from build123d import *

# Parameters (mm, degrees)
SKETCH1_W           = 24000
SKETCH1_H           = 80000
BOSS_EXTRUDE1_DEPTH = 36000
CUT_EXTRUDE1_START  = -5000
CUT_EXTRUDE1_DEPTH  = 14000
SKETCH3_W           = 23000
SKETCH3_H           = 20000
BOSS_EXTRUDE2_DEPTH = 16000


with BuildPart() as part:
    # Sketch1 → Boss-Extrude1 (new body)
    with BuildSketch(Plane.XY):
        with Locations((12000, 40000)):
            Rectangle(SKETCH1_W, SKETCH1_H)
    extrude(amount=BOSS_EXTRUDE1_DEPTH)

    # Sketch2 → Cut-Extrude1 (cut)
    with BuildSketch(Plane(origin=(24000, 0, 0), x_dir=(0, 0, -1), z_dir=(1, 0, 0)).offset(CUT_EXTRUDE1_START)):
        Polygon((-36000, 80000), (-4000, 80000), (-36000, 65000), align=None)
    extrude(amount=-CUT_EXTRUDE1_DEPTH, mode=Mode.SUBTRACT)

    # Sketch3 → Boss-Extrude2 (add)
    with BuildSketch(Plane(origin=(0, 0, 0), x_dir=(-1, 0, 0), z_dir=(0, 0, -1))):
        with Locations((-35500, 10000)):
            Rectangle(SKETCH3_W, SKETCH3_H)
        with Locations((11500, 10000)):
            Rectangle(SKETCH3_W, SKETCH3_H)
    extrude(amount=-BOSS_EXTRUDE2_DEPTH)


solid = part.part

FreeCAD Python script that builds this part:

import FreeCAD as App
import Part
import Sketcher


def add_polygon(sketch, points):
    """Adds a closed chain of lines whose ends are joined by coincident constraints."""
    first, n = sketch.GeometryCount, len(points)
    for a, b in zip(points, points[1:] + points[:1]):
        sketch.addGeometry(Part.LineSegment(App.Vector(*a, 0), App.Vector(*b, 0)), False)
    for i in range(n):
        sketch.addConstraint(Sketcher.Constraint("Coincident", first + i, 2, first + (i + 1) % n, 1))

doc = App.newDocument("Part")
body = doc.addObject("PartDesign::Body", "Body")

# Sketch on XY plane
sketch1 = doc.addObject("Sketcher::SketchObject", "Sketch")
body.addObject(sketch1)
sketch1.AttachmentSupport = (doc.XY_Plane, [""])
sketch1.MapMode = "FlatFace"
add_polygon(sketch1, [(0, 80000), (0, 0), (24000, 0), (24000, 80000)])  # lines 0-3
sketch1.addConstraint(Sketcher.Constraint("Vertical", 0))
sketch1.addConstraint(Sketcher.Constraint("Horizontal", 1))
sketch1.addConstraint(Sketcher.Constraint("Vertical", 2))
sketch1.addConstraint(Sketcher.Constraint("Horizontal", 3))
sketch1.addConstraint(Sketcher.Constraint("Coincident", 0, 2, -1, 1))
sketch1.addConstraint(Sketcher.Constraint("DistanceX", 1, 1, 1, 2, 24000.0))
sketch1.addConstraint(Sketcher.Constraint("DistanceY", 0, 2, 0, 1, 80000.0))
pad1 = doc.addObject("PartDesign::Pad", "Pad")
body.addObject(pad1)
pad1.Profile = sketch1
pad1.Length = 36000

# Sketch on YZ plane
sketch2 = doc.addObject("Sketcher::SketchObject", "Sketch001")
body.addObject(sketch2)
sketch2.AttachmentSupport = (doc.YZ_Plane, [""])
sketch2.MapMode = "FlatFace"
sketch2.AttachmentOffset = App.Placement(App.Vector(0, 0, 19000), App.Rotation())
add_polygon(sketch2, [(80000, 4000), (80000, 36000), (65000, 36000)])  # lines 0-2
sketch2.addConstraint(Sketcher.Constraint("Vertical", 0))
sketch2.addConstraint(Sketcher.Constraint("Horizontal", 1))
sketch2.addConstraint(Sketcher.Constraint("DistanceX", 1, 2, 1, 1, 15000.0))
sketch2.addConstraint(Sketcher.Constraint("DistanceY", 0, 1, 0, 2, 32000.0))
sketch2.addConstraint(Sketcher.Constraint("DistanceX", -1, 1, 0, 2, 80000.0))
sketch2.addConstraint(Sketcher.Constraint("DistanceY", -1, 1, 0, 2, 36000.0))
pocket1 = doc.addObject("PartDesign::Pocket", "Pocket")
body.addObject(pocket1)
pocket1.Profile = sketch2
pocket1.Length = 14000

# Sketch on XY plane
sketch3 = doc.addObject("Sketcher::SketchObject", "Sketch002")
body.addObject(sketch3)
sketch3.AttachmentSupport = (doc.XY_Plane, [""])
sketch3.MapMode = "FlatFace"
add_polygon(sketch3, [(47000, 20000), (47000, 0), (24000, 0), (24000, 20000)])  # lines 0-3
add_polygon(sketch3, [(0, 20000), (0, 0), (-23000, 0), (-23000, 20000)])  # lines 4-7
sketch3.addConstraint(Sketcher.Constraint("Vertical", 0))
sketch3.addConstraint(Sketcher.Constraint("Horizontal", 1))
sketch3.addConstraint(Sketcher.Constraint("Vertical", 2))
sketch3.addConstraint(Sketcher.Constraint("Horizontal", 3))
sketch3.addConstraint(Sketcher.Constraint("Vertical", 4))
sketch3.addConstraint(Sketcher.Constraint("Horizontal", 5))
sketch3.addConstraint(Sketcher.Constraint("Vertical", 6))
sketch3.addConstraint(Sketcher.Constraint("Horizontal", 7))
sketch3.addConstraint(Sketcher.Constraint("Coincident", 4, 2, -1, 1))
sketch3.addConstraint(Sketcher.Constraint("PointOnObject", 0, 2, -1))
sketch3.addConstraint(Sketcher.Constraint("Horizontal", 3, 2, 6, 2))
sketch3.addConstraint(Sketcher.Constraint("Equal", 3, 5))
sketch3.addConstraint(Sketcher.Constraint("DistanceX", 1, 2, 1, 1, 23000.0))
sketch3.addConstraint(Sketcher.Constraint("DistanceY", 0, 2, 0, 1, 20000.0))
sketch3.addConstraint(Sketcher.Constraint("DistanceX", -1, 1, 0, 2, 47000.0))
pad2 = doc.addObject("PartDesign::Pad", "Pad001")
body.addObject(pad2)
pad2.Profile = sketch3
pad2.Length = 16000

doc.recompute()
